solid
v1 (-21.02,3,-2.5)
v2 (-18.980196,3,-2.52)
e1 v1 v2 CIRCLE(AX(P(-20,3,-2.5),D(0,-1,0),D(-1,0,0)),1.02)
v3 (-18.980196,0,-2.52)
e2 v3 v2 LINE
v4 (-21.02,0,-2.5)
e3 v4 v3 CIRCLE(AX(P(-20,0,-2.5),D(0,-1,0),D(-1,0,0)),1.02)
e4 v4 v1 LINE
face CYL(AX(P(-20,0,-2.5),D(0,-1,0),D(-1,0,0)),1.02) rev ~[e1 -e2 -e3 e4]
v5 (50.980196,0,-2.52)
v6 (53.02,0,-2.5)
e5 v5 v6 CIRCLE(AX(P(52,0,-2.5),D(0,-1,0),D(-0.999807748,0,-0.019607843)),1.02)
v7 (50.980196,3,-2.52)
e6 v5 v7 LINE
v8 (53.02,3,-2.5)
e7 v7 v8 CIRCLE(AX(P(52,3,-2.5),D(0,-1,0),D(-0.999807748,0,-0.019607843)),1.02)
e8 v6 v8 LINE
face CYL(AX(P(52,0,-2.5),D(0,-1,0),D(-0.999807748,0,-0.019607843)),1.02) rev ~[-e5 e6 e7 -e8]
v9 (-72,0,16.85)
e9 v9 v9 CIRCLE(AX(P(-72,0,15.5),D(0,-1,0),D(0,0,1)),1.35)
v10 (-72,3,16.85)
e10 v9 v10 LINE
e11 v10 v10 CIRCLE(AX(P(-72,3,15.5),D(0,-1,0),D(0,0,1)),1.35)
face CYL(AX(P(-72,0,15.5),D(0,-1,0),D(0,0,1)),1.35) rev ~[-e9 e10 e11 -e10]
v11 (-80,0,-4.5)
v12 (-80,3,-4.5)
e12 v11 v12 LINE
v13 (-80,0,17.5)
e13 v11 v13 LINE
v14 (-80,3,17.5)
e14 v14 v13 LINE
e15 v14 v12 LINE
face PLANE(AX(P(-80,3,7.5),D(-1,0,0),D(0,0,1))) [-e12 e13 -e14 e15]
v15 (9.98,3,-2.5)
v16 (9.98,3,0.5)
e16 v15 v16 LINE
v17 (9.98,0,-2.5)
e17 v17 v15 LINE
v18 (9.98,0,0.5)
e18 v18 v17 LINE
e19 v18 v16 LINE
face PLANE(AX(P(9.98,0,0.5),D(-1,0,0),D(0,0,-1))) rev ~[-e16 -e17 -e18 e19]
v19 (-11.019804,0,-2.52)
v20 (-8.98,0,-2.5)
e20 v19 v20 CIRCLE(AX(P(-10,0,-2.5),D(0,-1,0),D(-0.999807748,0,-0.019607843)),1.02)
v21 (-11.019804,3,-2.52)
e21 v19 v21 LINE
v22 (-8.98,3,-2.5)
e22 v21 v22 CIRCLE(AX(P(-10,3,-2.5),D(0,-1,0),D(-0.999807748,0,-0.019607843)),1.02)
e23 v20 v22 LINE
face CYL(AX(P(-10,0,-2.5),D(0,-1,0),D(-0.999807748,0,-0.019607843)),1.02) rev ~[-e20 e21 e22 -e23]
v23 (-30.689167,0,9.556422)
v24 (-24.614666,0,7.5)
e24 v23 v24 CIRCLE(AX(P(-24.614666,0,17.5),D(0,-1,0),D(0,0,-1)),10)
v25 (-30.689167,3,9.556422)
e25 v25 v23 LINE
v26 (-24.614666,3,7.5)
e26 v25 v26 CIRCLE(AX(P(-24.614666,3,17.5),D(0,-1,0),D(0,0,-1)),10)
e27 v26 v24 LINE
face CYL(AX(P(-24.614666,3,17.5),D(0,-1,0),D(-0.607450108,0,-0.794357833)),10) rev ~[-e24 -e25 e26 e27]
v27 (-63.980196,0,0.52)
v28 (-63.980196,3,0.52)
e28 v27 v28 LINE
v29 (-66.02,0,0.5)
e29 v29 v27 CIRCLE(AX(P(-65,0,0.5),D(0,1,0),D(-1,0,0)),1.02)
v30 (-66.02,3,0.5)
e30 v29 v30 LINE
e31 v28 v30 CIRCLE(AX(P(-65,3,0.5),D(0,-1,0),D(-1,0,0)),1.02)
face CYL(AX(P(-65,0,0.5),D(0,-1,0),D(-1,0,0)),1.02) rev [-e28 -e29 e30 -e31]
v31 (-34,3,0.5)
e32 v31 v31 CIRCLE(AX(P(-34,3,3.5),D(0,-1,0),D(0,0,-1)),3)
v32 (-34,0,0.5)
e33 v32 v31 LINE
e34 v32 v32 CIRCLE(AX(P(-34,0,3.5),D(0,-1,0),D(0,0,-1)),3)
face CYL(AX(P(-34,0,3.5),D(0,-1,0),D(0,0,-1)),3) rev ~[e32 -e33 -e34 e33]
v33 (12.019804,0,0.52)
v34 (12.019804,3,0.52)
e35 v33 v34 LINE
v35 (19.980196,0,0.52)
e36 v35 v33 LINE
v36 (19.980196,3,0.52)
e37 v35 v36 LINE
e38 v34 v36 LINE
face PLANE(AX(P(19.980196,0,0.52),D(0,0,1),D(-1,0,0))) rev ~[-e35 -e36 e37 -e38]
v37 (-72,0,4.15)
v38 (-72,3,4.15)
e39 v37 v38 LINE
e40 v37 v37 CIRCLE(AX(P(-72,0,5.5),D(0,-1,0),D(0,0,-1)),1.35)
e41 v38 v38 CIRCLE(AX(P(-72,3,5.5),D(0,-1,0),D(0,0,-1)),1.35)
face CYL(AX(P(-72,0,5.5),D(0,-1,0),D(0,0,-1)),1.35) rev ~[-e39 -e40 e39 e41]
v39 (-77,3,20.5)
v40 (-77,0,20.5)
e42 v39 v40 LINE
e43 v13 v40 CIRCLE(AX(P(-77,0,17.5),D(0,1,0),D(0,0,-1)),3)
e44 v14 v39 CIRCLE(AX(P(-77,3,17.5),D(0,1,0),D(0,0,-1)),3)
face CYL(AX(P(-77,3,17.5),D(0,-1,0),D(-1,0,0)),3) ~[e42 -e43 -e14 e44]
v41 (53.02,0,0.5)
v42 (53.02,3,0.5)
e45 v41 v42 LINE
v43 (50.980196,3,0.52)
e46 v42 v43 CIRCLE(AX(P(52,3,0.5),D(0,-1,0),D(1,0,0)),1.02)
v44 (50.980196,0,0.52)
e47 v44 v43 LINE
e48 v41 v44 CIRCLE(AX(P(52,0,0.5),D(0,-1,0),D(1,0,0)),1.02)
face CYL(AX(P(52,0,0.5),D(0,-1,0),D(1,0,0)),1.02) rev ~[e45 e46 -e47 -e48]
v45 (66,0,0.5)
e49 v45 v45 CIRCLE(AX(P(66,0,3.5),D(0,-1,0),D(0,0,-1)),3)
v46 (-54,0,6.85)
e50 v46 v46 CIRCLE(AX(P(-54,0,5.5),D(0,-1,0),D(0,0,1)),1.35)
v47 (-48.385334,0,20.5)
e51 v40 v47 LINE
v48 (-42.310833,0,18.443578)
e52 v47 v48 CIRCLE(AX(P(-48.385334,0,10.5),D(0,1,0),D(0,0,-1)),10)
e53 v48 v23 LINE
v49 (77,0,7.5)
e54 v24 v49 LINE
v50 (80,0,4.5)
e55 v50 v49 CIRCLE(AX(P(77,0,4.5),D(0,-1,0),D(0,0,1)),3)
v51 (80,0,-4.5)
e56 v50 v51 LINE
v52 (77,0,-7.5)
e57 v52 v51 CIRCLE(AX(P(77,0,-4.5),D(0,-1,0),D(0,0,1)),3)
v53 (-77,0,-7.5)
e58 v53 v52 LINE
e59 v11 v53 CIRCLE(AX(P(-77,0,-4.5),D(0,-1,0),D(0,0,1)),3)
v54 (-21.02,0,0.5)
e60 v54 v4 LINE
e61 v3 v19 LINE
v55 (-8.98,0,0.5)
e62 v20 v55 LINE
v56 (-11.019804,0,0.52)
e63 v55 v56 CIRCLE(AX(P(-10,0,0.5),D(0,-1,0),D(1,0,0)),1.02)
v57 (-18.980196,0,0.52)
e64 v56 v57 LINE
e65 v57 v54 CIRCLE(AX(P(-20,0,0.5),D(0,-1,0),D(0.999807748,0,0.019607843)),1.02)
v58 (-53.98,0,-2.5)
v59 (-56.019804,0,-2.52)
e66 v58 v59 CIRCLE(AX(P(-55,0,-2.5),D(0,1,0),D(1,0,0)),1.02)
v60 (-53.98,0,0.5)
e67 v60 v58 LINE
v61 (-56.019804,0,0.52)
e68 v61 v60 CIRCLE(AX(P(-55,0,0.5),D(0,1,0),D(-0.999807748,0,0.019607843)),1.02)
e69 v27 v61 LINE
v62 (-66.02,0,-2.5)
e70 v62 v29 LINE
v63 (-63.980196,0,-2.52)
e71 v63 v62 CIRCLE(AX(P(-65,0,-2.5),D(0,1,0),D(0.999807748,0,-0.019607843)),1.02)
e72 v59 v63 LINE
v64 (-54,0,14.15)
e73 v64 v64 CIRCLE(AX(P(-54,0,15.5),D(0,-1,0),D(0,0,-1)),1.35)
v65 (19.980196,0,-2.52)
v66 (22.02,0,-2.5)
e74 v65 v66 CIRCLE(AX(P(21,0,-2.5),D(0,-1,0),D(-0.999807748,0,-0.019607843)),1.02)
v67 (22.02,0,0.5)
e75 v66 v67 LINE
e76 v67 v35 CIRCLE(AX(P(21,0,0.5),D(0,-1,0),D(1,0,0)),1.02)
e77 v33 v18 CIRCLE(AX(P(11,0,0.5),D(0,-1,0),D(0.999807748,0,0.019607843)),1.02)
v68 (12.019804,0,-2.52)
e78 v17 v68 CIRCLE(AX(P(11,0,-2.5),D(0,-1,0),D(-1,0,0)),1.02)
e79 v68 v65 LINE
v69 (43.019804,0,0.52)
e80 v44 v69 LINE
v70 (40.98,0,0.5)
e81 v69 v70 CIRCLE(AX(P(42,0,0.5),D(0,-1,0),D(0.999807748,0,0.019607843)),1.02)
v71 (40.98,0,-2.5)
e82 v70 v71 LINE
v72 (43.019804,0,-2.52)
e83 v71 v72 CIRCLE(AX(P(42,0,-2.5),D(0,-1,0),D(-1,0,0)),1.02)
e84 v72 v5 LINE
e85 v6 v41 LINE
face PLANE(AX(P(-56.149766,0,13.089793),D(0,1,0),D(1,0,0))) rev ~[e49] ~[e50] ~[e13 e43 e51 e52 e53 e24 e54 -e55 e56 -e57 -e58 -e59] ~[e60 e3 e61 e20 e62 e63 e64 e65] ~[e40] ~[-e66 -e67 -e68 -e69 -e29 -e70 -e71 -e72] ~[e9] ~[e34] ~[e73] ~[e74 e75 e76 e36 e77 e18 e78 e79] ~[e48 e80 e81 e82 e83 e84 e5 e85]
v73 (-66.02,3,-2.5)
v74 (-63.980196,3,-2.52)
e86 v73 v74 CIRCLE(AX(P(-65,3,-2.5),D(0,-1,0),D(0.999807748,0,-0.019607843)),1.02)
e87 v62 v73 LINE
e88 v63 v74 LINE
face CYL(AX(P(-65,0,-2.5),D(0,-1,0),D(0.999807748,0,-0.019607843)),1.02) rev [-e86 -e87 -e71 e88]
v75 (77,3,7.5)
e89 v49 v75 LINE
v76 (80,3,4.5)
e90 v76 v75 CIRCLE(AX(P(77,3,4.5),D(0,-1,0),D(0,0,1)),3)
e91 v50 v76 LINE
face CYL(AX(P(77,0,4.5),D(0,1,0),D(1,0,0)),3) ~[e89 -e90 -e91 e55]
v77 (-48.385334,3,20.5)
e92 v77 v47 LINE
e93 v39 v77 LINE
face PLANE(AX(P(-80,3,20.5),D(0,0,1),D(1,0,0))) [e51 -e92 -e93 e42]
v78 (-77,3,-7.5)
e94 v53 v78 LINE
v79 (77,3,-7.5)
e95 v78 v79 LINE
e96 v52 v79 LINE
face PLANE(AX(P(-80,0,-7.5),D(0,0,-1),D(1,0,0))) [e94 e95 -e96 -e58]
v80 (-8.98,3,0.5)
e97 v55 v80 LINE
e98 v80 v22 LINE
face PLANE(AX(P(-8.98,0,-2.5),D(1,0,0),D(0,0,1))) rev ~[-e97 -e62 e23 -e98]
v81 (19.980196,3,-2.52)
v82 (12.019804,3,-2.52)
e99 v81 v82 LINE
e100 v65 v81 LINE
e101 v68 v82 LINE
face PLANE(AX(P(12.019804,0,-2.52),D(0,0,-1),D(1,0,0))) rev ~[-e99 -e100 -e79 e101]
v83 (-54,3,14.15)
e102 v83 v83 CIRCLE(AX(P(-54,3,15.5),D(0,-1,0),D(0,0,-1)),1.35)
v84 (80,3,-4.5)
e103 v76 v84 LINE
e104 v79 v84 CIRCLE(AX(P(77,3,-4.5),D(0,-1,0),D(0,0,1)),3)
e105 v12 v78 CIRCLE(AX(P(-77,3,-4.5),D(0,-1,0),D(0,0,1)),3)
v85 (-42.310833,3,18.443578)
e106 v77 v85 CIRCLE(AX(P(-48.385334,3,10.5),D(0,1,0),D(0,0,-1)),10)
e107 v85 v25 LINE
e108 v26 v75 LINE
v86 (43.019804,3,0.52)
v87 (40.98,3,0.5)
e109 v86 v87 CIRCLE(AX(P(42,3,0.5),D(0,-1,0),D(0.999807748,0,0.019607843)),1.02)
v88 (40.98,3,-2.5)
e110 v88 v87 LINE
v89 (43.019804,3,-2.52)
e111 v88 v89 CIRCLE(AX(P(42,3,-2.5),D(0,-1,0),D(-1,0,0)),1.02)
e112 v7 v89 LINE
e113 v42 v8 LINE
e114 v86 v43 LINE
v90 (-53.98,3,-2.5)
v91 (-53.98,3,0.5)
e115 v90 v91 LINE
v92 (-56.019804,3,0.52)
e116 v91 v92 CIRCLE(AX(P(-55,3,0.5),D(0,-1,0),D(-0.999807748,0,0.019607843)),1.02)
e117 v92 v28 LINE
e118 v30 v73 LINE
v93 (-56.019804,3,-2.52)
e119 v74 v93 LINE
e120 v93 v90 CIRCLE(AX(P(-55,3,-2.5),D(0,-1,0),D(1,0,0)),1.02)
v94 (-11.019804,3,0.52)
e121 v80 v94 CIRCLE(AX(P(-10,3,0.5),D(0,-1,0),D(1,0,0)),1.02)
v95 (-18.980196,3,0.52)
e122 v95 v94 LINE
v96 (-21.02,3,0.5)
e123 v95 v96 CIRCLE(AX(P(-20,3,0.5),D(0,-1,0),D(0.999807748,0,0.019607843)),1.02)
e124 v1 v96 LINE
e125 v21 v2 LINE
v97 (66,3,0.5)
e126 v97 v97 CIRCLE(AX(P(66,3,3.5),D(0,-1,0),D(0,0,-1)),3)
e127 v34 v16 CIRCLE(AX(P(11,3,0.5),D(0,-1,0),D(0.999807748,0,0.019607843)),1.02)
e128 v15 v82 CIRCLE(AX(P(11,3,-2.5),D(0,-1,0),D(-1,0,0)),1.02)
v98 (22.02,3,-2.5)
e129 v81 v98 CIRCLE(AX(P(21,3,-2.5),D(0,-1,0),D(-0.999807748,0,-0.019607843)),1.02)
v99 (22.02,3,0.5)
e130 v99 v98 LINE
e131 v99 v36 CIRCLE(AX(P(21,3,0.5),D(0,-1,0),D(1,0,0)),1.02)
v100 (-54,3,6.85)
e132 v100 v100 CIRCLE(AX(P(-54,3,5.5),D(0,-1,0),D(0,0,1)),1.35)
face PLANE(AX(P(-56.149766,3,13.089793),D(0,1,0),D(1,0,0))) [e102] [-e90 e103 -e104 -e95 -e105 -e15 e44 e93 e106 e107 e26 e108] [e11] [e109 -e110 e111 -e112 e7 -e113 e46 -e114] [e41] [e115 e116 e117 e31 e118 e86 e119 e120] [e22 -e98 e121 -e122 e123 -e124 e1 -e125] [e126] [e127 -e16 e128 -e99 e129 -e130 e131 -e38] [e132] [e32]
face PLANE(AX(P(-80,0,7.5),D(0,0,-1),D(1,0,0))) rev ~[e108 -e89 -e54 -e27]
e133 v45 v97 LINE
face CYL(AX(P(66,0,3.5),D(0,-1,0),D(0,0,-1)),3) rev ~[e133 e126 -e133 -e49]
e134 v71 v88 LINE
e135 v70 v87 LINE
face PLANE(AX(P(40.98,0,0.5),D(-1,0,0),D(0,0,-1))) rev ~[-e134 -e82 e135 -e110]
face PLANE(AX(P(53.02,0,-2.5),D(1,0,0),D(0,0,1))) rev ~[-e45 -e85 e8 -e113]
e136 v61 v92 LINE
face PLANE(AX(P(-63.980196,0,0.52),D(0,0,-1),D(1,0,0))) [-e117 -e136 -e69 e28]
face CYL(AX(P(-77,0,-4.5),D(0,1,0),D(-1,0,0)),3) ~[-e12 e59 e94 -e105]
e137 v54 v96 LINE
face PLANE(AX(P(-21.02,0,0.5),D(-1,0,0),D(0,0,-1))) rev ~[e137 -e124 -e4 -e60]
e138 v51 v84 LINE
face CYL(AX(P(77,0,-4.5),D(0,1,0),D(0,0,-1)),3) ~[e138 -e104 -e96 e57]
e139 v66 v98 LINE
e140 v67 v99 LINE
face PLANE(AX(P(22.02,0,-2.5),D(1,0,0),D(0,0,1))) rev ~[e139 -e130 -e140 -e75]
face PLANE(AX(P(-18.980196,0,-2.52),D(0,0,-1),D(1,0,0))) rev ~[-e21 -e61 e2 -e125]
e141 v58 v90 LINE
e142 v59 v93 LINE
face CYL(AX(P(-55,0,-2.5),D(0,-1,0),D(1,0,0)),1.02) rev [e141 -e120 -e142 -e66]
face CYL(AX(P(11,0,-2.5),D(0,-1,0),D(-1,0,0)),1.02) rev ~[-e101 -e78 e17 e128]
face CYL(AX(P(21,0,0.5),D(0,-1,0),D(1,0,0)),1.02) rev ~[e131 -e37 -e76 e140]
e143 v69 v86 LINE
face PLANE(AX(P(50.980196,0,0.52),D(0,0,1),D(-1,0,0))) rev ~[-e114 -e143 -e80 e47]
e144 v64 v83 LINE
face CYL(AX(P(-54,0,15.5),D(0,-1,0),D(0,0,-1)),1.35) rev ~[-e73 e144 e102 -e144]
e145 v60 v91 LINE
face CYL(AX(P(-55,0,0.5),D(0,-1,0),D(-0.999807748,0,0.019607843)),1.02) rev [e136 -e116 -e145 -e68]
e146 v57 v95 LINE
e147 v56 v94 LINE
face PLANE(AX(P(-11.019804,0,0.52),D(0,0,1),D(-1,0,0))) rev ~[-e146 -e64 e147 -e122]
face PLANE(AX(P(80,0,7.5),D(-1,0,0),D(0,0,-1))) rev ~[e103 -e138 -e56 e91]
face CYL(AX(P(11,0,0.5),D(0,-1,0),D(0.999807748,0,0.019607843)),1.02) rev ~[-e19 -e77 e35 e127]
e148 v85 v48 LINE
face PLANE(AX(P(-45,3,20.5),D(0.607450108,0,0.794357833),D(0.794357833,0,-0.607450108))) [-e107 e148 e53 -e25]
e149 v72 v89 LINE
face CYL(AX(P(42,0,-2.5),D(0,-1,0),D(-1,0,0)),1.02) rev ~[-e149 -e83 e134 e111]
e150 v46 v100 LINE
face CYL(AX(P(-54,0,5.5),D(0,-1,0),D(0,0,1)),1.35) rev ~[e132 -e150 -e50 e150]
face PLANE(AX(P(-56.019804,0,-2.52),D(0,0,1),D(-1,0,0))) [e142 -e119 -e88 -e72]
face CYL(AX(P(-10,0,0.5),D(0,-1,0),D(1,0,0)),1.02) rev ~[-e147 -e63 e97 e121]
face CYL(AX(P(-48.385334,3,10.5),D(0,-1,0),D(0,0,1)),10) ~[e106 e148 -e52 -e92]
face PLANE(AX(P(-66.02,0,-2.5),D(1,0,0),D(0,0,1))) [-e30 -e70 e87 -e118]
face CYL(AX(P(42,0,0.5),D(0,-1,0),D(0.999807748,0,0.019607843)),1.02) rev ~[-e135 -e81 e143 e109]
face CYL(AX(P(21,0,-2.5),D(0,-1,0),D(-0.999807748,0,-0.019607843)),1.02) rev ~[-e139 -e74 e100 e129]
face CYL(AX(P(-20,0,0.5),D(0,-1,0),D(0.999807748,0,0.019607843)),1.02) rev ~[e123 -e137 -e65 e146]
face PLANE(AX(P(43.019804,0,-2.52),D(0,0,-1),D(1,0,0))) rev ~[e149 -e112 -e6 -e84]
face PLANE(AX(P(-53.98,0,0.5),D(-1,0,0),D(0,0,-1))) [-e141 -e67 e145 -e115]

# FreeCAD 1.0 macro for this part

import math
import FreeCAD as App
import Part
import Sketcher


def edges_at(feature, points):
    """Names of the edges that pass closest to the given points."""
    edges = feature.Shape.Edges
    near = lambda p: min(range(len(edges)), key=lambda i: edges[i].distToShape(Part.Vertex(*p))[0])
    return sorted({f"Edge{near(p) + 1}" for p in points})


def add_polygon(sketch, points):
    """Adds a closed chain of lines whose ends are joined by coincident constraints."""
    first, n = sketch.GeometryCount, len(points)
    for a, b in zip(points, points[1:] + points[:1]):
        sketch.addGeometry(Part.LineSegment(App.Vector(*a, 0), App.Vector(*b, 0)), False)
    for i in range(n):
        sketch.addConstraint(Sketcher.Constraint("Coincident", first + i, 2, first + (i + 1) % n, 1))

doc = App.newDocument("Part")
params = doc.addObject("Spreadsheet::Sheet", "Params")
for row, (alias, value) in enumerate([
    ("sketch1_width", "160 mm"),
    ("sketch1_height", "15 mm"),
    ("pad1_length", "3 mm"),
    ("sketch2_width", "52 mm"),
    ("sketch2_width2", "35 mm"),
    ("sketch2_height", "13 mm"),
    ("pad2_length", "3 mm"),
    ("sketch3_width", "12 mm"),
    ("sketch3_height", "3 mm"),
    ("sketch4_diameter", "2 mm"),
    ("sketch5_height", "3 mm"),
    ("sketch5_radius", "1.02 mm"),
    ("fillet_radius", "3 mm"),
    ("fillet2_radius", "10 mm"),
    ("sketch6_diameter", "6 mm"),
    ("sketch7_diameter", "2.7 mm"),
], start=1):
    params.set(f"A{row}", alias)
    params.set(f"B{row}", "=" + value)
    params.setAlias(f"B{row}", alias)

body = doc.addObject("PartDesign::Body", "Body")

# Sketch on XZ plane
sketch1 = body.newObject("Sketcher::SketchObject", "Sketch")
sketch1.AttachmentSupport = (doc.getObject("XZ_Plane"), [""])
sketch1.MapMode = "FlatFace"
add_polygon(sketch1, [(-80, -7.5), (-80, 7.5), (80, 7.5), (80, -7.5)])  # lines 0-3
sketch1.addConstraint([
    Sketcher.Constraint("Vertical", 0),
    Sketcher.Constraint("Horizontal", 1),
    Sketcher.Constraint("Vertical", 2),
    Sketcher.Constraint("Horizontal", 3),
    Sketcher.Constraint("Symmetric", 0, 2, 2, 2, -1, 1),
    Sketcher.Constraint("DistanceX", 1, 1, 1, 2, 160.0),
    Sketcher.Constraint("DistanceY", 0, 1, 0, 2, 15.0),
])
sketch1.setExpression("Constraints[9]", "Params.sketch1_width")
sketch1.setExpression("Constraints[10]", "Params.sketch1_height")
pad1 = body.newObject("PartDesign::Pad", "Pad")
pad1.Profile = sketch1
pad1.setExpression("Length", "Params.pad1_length")
pad1.Reversed = True

# Sketch on XZ plane
sketch2 = body.newObject("Sketcher::SketchObject", "Sketch001")
sketch2.AttachmentSupport = (doc.getObject("XZ_Plane"), [""])
sketch2.MapMode = "FlatFace"
sketch2.AttachmentOffset = App.Placement(App.Vector(0, 0, -3), App.Rotation())
add_polygon(sketch2, [(-28, 7.5), (-80, 7.5), (-80, 20.5), (-45, 20.5)])  # lines 0-3
sketch2.addConstraint([
    Sketcher.Constraint("Horizontal", 0),
    Sketcher.Constraint("Vertical", 1),
    Sketcher.Constraint("Horizontal", 2),
    Sketcher.Constraint("DistanceX", 0, 2, 0, 1, 52.0),
    Sketcher.Constraint("DistanceX", 2, 1, 2, 2, 35.0),
    Sketcher.Constraint("DistanceY", 1, 1, 1, 2, 13.0),
    Sketcher.Constraint("DistanceX", 0, 2, -1, 1, 80.0),
    Sketcher.Constraint("DistanceY", -1, 1, 0, 2, 7.5),
])
sketch2.setExpression("Constraints[7]", "Params.sketch2_width")
sketch2.setExpression("Constraints[8]", "Params.sketch2_width2")
sketch2.setExpression("Constraints[9]", "Params.sketch2_height")
pad2 = body.newObject("PartDesign::Pad", "Pad001")
pad2.Profile = sketch2
pad2.setExpression("Length", "Params.pad2_length")

# Sketch on XZ plane
sketch3 = body.newObject("Sketcher::SketchObject", "Sketch002")
sketch3.AttachmentSupport = (doc.getObject("XZ_Plane"), [""])
sketch3.MapMode = "FlatFace"
add_polygon(sketch3, [(10, 0.5), (10, -2.5), (22, -2.5), (22, 0.5)])  # lines 0-3
add_polygon(sketch3, [(41, 0.5), (41, -2.5), (53, -2.5), (53, 0.5)])  # lines 4-7
add_polygon(sketch3, [(-21, 0.5), (-21, -2.5), (-9, -2.5), (-9, 0.5)])  # lines 8-11
add_polygon(sketch3, [(-66, 0.5), (-66, -2.5), (-54, -2.5), (-54, 0.5)])  # lines 12-15
sketch3.addConstraint([
    Sketcher.Constraint("Vertical", 0),
    Sketcher.Constraint("Horizontal", 1),
    Sketcher.Constraint("Vertical", 2),
    Sketcher.Constraint("Horizontal", 3),
    Sketcher.Constraint("Vertical", 4),
    Sketcher.Constraint("Horizontal", 5),
    Sketcher.Constraint("Vertical", 6),
    Sketcher.Constraint("Horizontal", 7),
    Sketcher.Constraint("Vertical", 8),
    Sketcher.Constraint("Horizontal", 9),
    Sketcher.Constraint("Vertical", 10),
    Sketcher.Constraint("Horizontal", 11),
    Sketcher.Constraint("Vertical", 12),
    Sketcher.Constraint("Horizontal", 13),
    Sketcher.Constraint("Vertical", 14),
    Sketcher.Constraint("Horizontal", 15),
    Sketcher.Constraint("Horizontal", 1, 2, 4, 2),
    Sketcher.Constraint("Horizontal", 3, 2, 6, 2),
    Sketcher.Constraint("Horizontal", 5, 2, 8, 2),
    Sketcher.Constraint("Horizontal", 7, 2, 10, 2),
    Sketcher.Constraint("Horizontal", 9, 2, 12, 2),
    Sketcher.Constraint("Horizontal", 11, 2, 14, 2),
    Sketcher.Constraint("Equal", 3, 5),
    Sketcher.Constraint("Equal", 7, 9),
    Sketcher.Constraint("Equal", 11, 13),
    Sketcher.Constraint("DistanceX", 1, 1, 1, 2, 12.0),
    Sketcher.Constraint("DistanceY", 0, 2, 0, 1, 3.0),
    Sketcher.Constraint("DistanceX", -1, 1, 0, 2, 10.0),
    Sketcher.Constraint("DistanceX", -1, 1, 4, 2, 41.0),
    Sketcher.Constraint("DistanceX", 8, 2, -1, 1, 21.0),
    Sketcher.Constraint("DistanceX", 12, 2, -1, 1, 66.0),
    Sketcher.Constraint("DistanceY", 0, 2, -1, 1, 2.5),
])
sketch3.setExpression("Constraints[41]", "Params.sketch3_width")
sketch3.setExpression("Constraints[42]", "Params.sketch3_height")
pocket1 = body.newObject("PartDesign::Pocket", "Pocket")
pocket1.Profile = sketch3
pocket1.Type = "ThroughAll"

# Sketch on XZ plane
sketch4 = body.newObject("Sketcher::SketchObject", "Sketch003")
sketch4.AttachmentSupport = (doc.getObject("XZ_Plane"), [""])
sketch4.MapMode = "FlatFace"
sketch4.addGeometry([
    Part.Circle(App.Vector(52, -2.5, 0), App.Vector(0, 0, 1), 1),  # 0
    Part.Circle(App.Vector(42, -2.5, 0), App.Vector(0, 0, 1), 1),  # 1
    Part.Circle(App.Vector(21, -2.5, 0), App.Vector(0, 0, 1), 1),  # 2
    Part.Circle(App.Vector(11, -2.5, 0), App.Vector(0, 0, 1), 1),  # 3
    Part.Circle(App.Vector(-10, -2.5, 0), App.Vector(0, 0, 1), 1),  # 4
    Part.Circle(App.Vector(-20, -2.5, 0), App.Vector(0, 0, 1), 1),  # 5
    Part.Circle(App.Vector(-65, -2.5, 0), App.Vector(0, 0, 1), 1),  # 6
    Part.Circle(App.Vector(-55, -2.5, 0), App.Vector(0, 0, 1), 1),  # 7
    Part.Circle(App.Vector(-55, 0.5, 0), App.Vector(0, 0, 1), 1),  # 8
    Part.Circle(App.Vector(-65, 0.5, 0), App.Vector(0, 0, 1), 1),  # 9
    Part.Circle(App.Vector(-20, 0.5, 0), App.Vector(0, 0, 1), 1),  # 10
    Part.Circle(App.Vector(-10, 0.5, 0), App.Vector(0, 0, 1), 1),  # 11
    Part.Circle(App.Vector(11, 0.5, 0), App.Vector(0, 0, 1), 1),  # 12
    Part.Circle(App.Vector(21, 0.5, 0), App.Vector(0, 0, 1), 1),  # 13
    Part.Circle(App.Vector(42, 0.5, 0), App.Vector(0, 0, 1), 1),  # 14
    Part.Circle(App.Vector(52, 0.5, 0), App.Vector(0, 0, 1), 1),  # 15
], False)
sketch4.addConstraint([
    Sketcher.Constraint("Equal", 0, 1),
    Sketcher.Constraint("Equal", 1, 2),
    Sketcher.Constraint("Equal", 2, 3),
    Sketcher.Constraint("Equal", 3, 4),
    Sketcher.Constraint("Equal", 4, 5),
    Sketcher.Constraint("Equal", 5, 6),
    Sketcher.Constraint("Equal", 6, 7),
    Sketcher.Constraint("Equal", 7, 8),
    Sketcher.Constraint("Equal", 8, 9),
    Sketcher.Constraint("Equal", 9, 10),
    Sketcher.Constraint("Equal", 10, 11),
    Sketcher.Constraint("Equal", 11, 12),
    Sketcher.Constraint("Equal", 12, 13),
    Sketcher.Constraint("Equal", 13, 14),
    Sketcher.Constraint("Equal", 14, 15),
    Sketcher.Constraint("Horizontal", 0, 3, 1, 3),
    Sketcher.Constraint("Horizontal", 1, 3, 2, 3),
    Sketcher.Constraint("Horizontal", 2, 3, 3, 3),
    Sketcher.Constraint("Horizontal", 3, 3, 4, 3),
    Sketcher.Constraint("Horizontal", 4, 3, 5, 3),
    Sketcher.Constraint("Horizontal", 5, 3, 6, 3),
    Sketcher.Constraint("Horizontal", 6, 3, 7, 3),
    Sketcher.Constraint("Horizontal", 8, 3, 9, 3),
    Sketcher.Constraint("Horizontal", 9, 3, 10, 3),
    Sketcher.Constraint("Horizontal", 10, 3, 11, 3),
    Sketcher.Constraint("Horizontal", 11, 3, 12, 3),
    Sketcher.Constraint("Horizontal", 12, 3, 13, 3),
    Sketcher.Constraint("Horizontal", 13, 3, 14, 3),
    Sketcher.Constraint("Horizontal", 14, 3, 15, 3),
    Sketcher.Constraint("Vertical", 7, 3, 8, 3),
    Sketcher.Constraint("Vertical", 6, 3, 9, 3),
    Sketcher.Constraint("Vertical", 5, 3, 10, 3),
    Sketcher.Constraint("Vertical", 4, 3, 11, 3),
    Sketcher.Constraint("Vertical", 3, 3, 12, 3),
    Sketcher.Constraint("Vertical", 2, 3, 13, 3),
    Sketcher.Constraint("Vertical", 1, 3, 14, 3),
    Sketcher.Constraint("Vertical", 0, 3, 15, 3),
    Sketcher.Constraint("Diameter", 0, 2.0),
    Sketcher.Constraint("DistanceX", -1, 1, 0, 3, 52.0),
    Sketcher.Constraint("DistanceX", -1, 1, 1, 3, 42.0),
    Sketcher.Constraint("DistanceX", -1, 1, 2, 3, 21.0),
    Sketcher.Constraint("DistanceX", -1, 1, 3, 3, 11.0),
    Sketcher.Constraint("DistanceX", 4, 3, -1, 1, 10.0),
    Sketcher.Constraint("DistanceX", 5, 3, -1, 1, 20.0),
    Sketcher.Constraint("DistanceX", 6, 3, -1, 1, 65.0),
    Sketcher.Constraint("DistanceX", 7, 3, -1, 1, 55.0),
    Sketcher.Constraint("DistanceY", 7, 3, 8, 3, 3.0),
    Sketcher.Constraint("DistanceY", 0, 3, -1, 1, 2.5),
])
sketch4.setExpression("Constraints[37]", "Params.sketch4_diameter")
pocket2 = body.newObject("PartDesign::Pocket", "Pocket001")
pocket2.Profile = sketch4
pocket2.Type = "ThroughAll"

# Sketch on XZ plane
sketch5 = body.newObject("Sketcher::SketchObject", "Sketch004")
sketch5.AttachmentSupport = (doc.getObject("XZ_Plane"), [""])
sketch5.MapMode = "FlatFace"
sketch5.addGeometry([
    Part.LineSegment(App.Vector(19.980196, 0.52, 0), App.Vector(12.019804, 0.52, 0)),  # 0
    Part.ArcOfCircle(Part.Circle(App.Vector(11, 0.5, 0), App.Vector(0, 0, 1), 1.02), math.radians(1.123519), math.radians(180)),  # 1
    Part.LineSegment(App.Vector(9.98, 0.5, 0), App.Vector(9.98, -2.5, 0)),  # 2
    Part.ArcOfCircle(Part.Circle(App.Vector(11, -2.5, 0), App.Vector(0, 0, 1), 1.02), math.radians(180), math.radians(358.876481)),  # 3
    Part.LineSegment(App.Vector(12.019804, -2.52, 0), App.Vector(19.980196, -2.52, 0)),  # 4
    Part.ArcOfCircle(Part.Circle(App.Vector(21, -2.5, 0), App.Vector(0, 0, 1), 1.02), math.radians(-178.876481), math.radians(0)),  # 5
    Part.LineSegment(App.Vector(22.02, -2.5, 0), App.Vector(22.02, 0.5, 0)),  # 6
    Part.ArcOfCircle(Part.Circle(App.Vector(21, 0.5, 0), App.Vector(0, 0, 1), 1.02), math.radians(0), math.radians(178.876481)),  # 7
    Part.LineSegment(App.Vector(53.02, -2.5, 0), App.Vector(53.02, 0.5, 0)),  # 8
    Part.ArcOfCircle(Part.Circle(App.Vector(52, 0.5, 0), App.Vector(0, 0, 1), 1.02), math.radians(0), math.radians(178.876481)),  # 9
    Part.LineSegment(App.Vector(50.980196, 0.52, 0), App.Vector(43.019804, 0.52, 0)),  # 10
    Part.ArcOfCircle(Part.Circle(App.Vector(42, 0.5, 0), App.Vector(0, 0, 1), 1.02), math.radians(1.123519), math.radians(180)),  # 11
    Part.LineSegment(App.Vector(40.98, 0.5, 0), App.Vector(40.98, -2.5, 0)),  # 12
    Part.ArcOfCircle(Part.Circle(App.Vector(42, -2.5, 0), App.Vector(0, 0, 1), 1.02), math.radians(180), math.radians(358.876481)),  # 13
    Part.LineSegment(App.Vector(43.019804, -2.52, 0), App.Vector(50.980196, -2.52, 0)),  # 14
    Part.ArcOfCircle(Part.Circle(App.Vector(52, -2.5, 0), App.Vector(0, 0, 1), 1.02), math.radians(-178.876481), math.radians(0)),  # 15
    Part.LineSegment(App.Vector(-11.019804, 0.52, 0), App.Vector(-18.980196, 0.52, 0)),  # 16
    Part.ArcOfCircle(Part.Circle(App.Vector(-20, 0.5, 0), App.Vector(0, 0, 1), 1.02), math.radians(1.123519), math.radians(180)),  # 17
    Part.LineSegment(App.Vector(-21.02, 0.5, 0), App.Vector(-21.02, -2.5, 0)),  # 18
    Part.ArcOfCircle(Part.Circle(App.Vector(-20, -2.5, 0), App.Vector(0, 0, 1), 1.02), math.radians(180), math.radians(358.876481)),  # 19
    Part.LineSegment(App.Vector(-18.980196, -2.52, 0), App.Vector(-11.019804, -2.52, 0)),  # 20
    Part.ArcOfCircle(Part.Circle(App.Vector(-10, -2.5, 0), App.Vector(0, 0, 1), 1.02), math.radians(-178.876481), math.radians(0)),  # 21
    Part.LineSegment(App.Vector(-8.98, -2.5, 0), App.Vector(-8.98, 0.5, 0)),  # 22
    Part.ArcOfCircle(Part.Circle(App.Vector(-10, 0.5, 0), App.Vector(0, 0, 1), 1.02), math.radians(0), math.radians(178.876481)),  # 23
    Part.LineSegment(App.Vector(-66.02, 0.5, 0), App.Vector(-66.02, -2.5, 0)),  # 24
    Part.ArcOfCircle(Part.Circle(App.Vector(-65, -2.5, 0), App.Vector(0, 0, 1), 1.02), math.radians(180), math.radians(358.876481)),  # 25
    Part.LineSegment(App.Vector(-63.980196, -2.52, 0), App.Vector(-56.019804, -2.52, 0)),  # 26
    Part.ArcOfCircle(Part.Circle(App.Vector(-55, -2.5, 0), App.Vector(0, 0, 1), 1.02), math.radians(-178.876481), math.radians(0)),  # 27
    Part.LineSegment(App.Vector(-53.98, -2.5, 0), App.Vector(-53.98, 0.5, 0)),  # 28
    Part.ArcOfCircle(Part.Circle(App.Vector(-55, 0.5, 0), App.Vector(0, 0, 1), 1.02), math.radians(0), math.radians(178.876481)),  # 29
    Part.LineSegment(App.Vector(-56.019804, 0.52, 0), App.Vector(-63.980196, 0.52, 0)),  # 30
    Part.ArcOfCircle(Part.Circle(App.Vector(-65, 0.5, 0), App.Vector(0, 0, 1), 1.02), math.radians(1.123519), math.radians(180)),  # 31
], False)
sketch5.addConstraint([
    Sketcher.Constraint("Coincident", 0, 2, 1, 1),
    Sketcher.Constraint("Tangent", 1, 2, 2, 1),
    Sketcher.Constraint("Tangent", 2, 2, 3, 1),
    Sketcher.Constraint("Coincident", 3, 2, 4, 1),
    Sketcher.Constraint("Coincident", 4, 2, 5, 1),
    Sketcher.Constraint("Tangent", 5, 2, 6, 1),
    Sketcher.Constraint("Tangent", 6, 2, 7, 1),
    Sketcher.Constraint("Coincident", 7, 2, 0, 1),
    Sketcher.Constraint("Tangent", 8, 2, 9, 1),
    Sketcher.Constraint("Coincident", 9, 2, 10, 1),
    Sketcher.Constraint("Coincident", 10, 2, 11, 1),
    Sketcher.Constraint("Tangent", 11, 2, 12, 1),
    Sketcher.Constraint("Tangent", 12, 2, 13, 1),
    Sketcher.Constraint("Coincident", 13, 2, 14, 1),
    Sketcher.Constraint("Coincident", 14, 2, 15, 1),
    Sketcher.Constraint("Tangent", 15, 2, 8, 1),
    Sketcher.Constraint("Coincident", 16, 2, 17, 1),
    Sketcher.Constraint("Tangent", 17, 2, 18, 1),
    Sketcher.Constraint("Tangent", 18, 2, 19, 1),
    Sketcher.Constraint("Coincident", 19, 2, 20, 1),
    Sketcher.Constraint("Coincident", 20, 2, 21, 1),
    Sketcher.Constraint("Tangent", 21, 2, 22, 1),
    Sketcher.Constraint("Tangent", 22, 2, 23, 1),
    Sketcher.Constraint("Coincident", 23, 2, 16, 1),
    Sketcher.Constraint("Tangent", 24, 2, 25, 1),
    Sketcher.Constraint("Coincident", 25, 2, 26, 1),
    Sketcher.Constraint("Coincident", 26, 2, 27, 1),
    Sketcher.Constraint("Tangent", 27, 2, 28, 1),
    Sketcher.Constraint("Tangent", 28, 2, 29, 1),
    Sketcher.Constraint("Coincident", 29, 2, 30, 1),
    Sketcher.Constraint("Coincident", 30, 2, 31, 1),
    Sketcher.Constraint("Tangent", 31, 2, 24, 1),
    Sketcher.Constraint("Horizontal", 0),
    Sketcher.Constraint("Vertical", 2),
    Sketcher.Constraint("Horizontal", 4),
    Sketcher.Constraint("Vertical", 6),
    Sketcher.Constraint("Vertical", 8),
    Sketcher.Constraint("Horizontal", 10),
    Sketcher.Constraint("Vertical", 12),
    Sketcher.Constraint("Horizontal", 14),
    Sketcher.Constraint("Horizontal", 16),
    Sketcher.Constraint("Vertical", 18),
    Sketcher.Constraint("Horizontal", 20),
    Sketcher.Constraint("Vertical", 22),
    Sketcher.Constraint("Vertical", 24),
    Sketcher.Constraint("Horizontal", 26),
    Sketcher.Constraint("Vertical", 28),
    Sketcher.Constraint("Horizontal", 30),
    Sketcher.Constraint("Equal", 1, 3),
    Sketcher.Constraint("Equal", 3, 5),
    Sketcher.Constraint("Equal", 5, 7),
    Sketcher.Constraint("Equal", 7, 9),
    Sketcher.Constraint("Equal", 9, 11),
    Sketcher.Constraint("Equal", 11, 13),
    Sketcher.Constraint("Equal", 13, 15),
    Sketcher.Constraint("Equal", 15, 17),
    Sketcher.Constraint("Equal", 17, 19),
    Sketcher.Constraint("Equal", 19, 21),
    Sketcher.Constraint("Equal", 21, 23),
    Sketcher.Constraint("Equal", 23, 25),
    Sketcher.Constraint("Equal", 25, 27),
    Sketcher.Constraint("Equal", 27, 29),
    Sketcher.Constraint("Equal", 29, 31),
    Sketcher.Constraint("Horizontal", 3, 3, 5, 3),
    Sketcher.Constraint("Horizontal", 1, 3, 7, 3),
    Sketcher.Constraint("Horizontal", 7, 3, 9, 3),
    Sketcher.Constraint("Horizontal", 9, 3, 11, 3),
    Sketcher.Constraint("Horizontal", 5, 3, 13, 3),
    Sketcher.Constraint("Horizontal", 13, 3, 15, 3),
    Sketcher.Constraint("Horizontal", 11, 3, 17, 3),
    Sketcher.Constraint("Horizontal", 15, 3, 19, 3),
    Sketcher.Constraint("Horizontal", 19, 3, 21, 3),
    Sketcher.Constraint("Horizontal", 17, 3, 23, 3),
    Sketcher.Constraint("Horizontal", 21, 3, 25, 3),
    Sketcher.Constraint("Horizontal", 25, 3, 27, 3),
    Sketcher.Constraint("Horizontal", 23, 3, 29, 3),
    Sketcher.Constraint("Horizontal", 29, 3, 31, 3),
    Sketcher.Constraint("Horizontal", 7, 2, 9, 2),
    Sketcher.Constraint("Horizontal", 4, 2, 13, 2),
    Sketcher.Constraint("Horizontal", 10, 2, 16, 2),
    Sketcher.Constraint("Horizontal", 14, 2, 19, 2),
    Sketcher.Constraint("Horizontal", 20, 2, 25, 2),
    Sketcher.Constraint("Horizontal", 23, 2, 29, 2),
    Sketcher.Constraint("Vertical", 0, 2, 3, 2),
    Sketcher.Constraint("Equal", 4, 10),
    Sketcher.Constraint("Equal", 14, 16),
    Sketcher.Constraint("Equal", 20, 26),
    Sketcher.Constraint("DistanceY", 2, 2, 2, 1, 3.0),
    Sketcher.Constraint("Radius", 1, 1.02),
    Sketcher.Constraint("DistanceX", -1, 1, 1, 3, 11.0),
    Sketcher.Constraint("DistanceX", -1, 1, 5, 3, 21.0),
    Sketcher.Constraint("DistanceX", -1, 1, 9, 3, 52.0),
    Sketcher.Constraint("DistanceX", 17, 3, -1, 1, 20.0),
    Sketcher.Constraint("DistanceX", 25, 3, -1, 1, 65.0),
    Sketcher.Constraint("DistanceY", -1, 1, 1, 3, 0.5),
    Sketcher.Constraint("DistanceY", -1, 1, 0, 2, 0.52),
])
sketch5.setExpression("Constraints[87]", "Params.sketch5_height")
sketch5.setExpression("Constraints[88]", "Params.sketch5_radius")
pocket3 = body.newObject("PartDesign::Pocket", "Pocket002")
pocket3.Profile = sketch5
pocket3.Type = "ThroughAll"
doc.recompute()

fillet = body.newObject("PartDesign::Fillet", "Fillet")
fillet.Base = (pocket3, edges_at(pocket3, [
    (-80, 1.5, 20.5),
    (80, 1.5, 7.5),
    (-80, 1.5, -7.5),
    (80, 1.5, -7.5),
]))
fillet.setExpression("Radius", "Params.fillet_radius")
doc.recompute()

fillet2 = body.newObject("PartDesign::Fillet", "Fillet001")
fillet2.Base = (fillet, edges_at(fillet, [(-28, 1.5, 7.5), (-45, 1.5, 20.5)]))
fillet2.setExpression("Radius", "Params.fillet2_radius")

# Sketch on XZ plane
sketch6 = body.newObject("Sketcher::SketchObject", "Sketch005")
sketch6.AttachmentSupport = (doc.getObject("XZ_Plane"), [""])
sketch6.MapMode = "FlatFace"
sketch6.addGeometry([
    Part.Circle(App.Vector(66, 3.5, 0), App.Vector(0, 0, 1), 3),
    Part.Circle(App.Vector(-34, 3.5, 0), App.Vector(0, 0, 1), 3),
], False)
sketch6.addConstraint([
    Sketcher.Constraint("Equal", 0, 1),
    Sketcher.Constraint("Horizontal", 0, 3, 1, 3),
    Sketcher.Constraint("Diameter", 0, 6.0),
    Sketcher.Constraint("DistanceX", -1, 1, 0, 3, 66.0),
    Sketcher.Constraint("DistanceX", 1, 3, -1, 1, 34.0),
    Sketcher.Constraint("DistanceY", -1, 1, 0, 3, 3.5),
])
sketch6.setExpression("Constraints[2]", "Params.sketch6_diameter")
pocket4 = body.newObject("PartDesign::Pocket", "Pocket003")
pocket4.Profile = sketch6
pocket4.Type = "ThroughAll"

# Sketch on XZ plane
sketch7 = body.newObject("Sketcher::SketchObject", "Sketch006")
sketch7.AttachmentSupport = (doc.getObject("XZ_Plane"), [""])
sketch7.MapMode = "FlatFace"
sketch7.addGeometry([
    Part.Circle(App.Vector(-72, 5.5, 0), App.Vector(0, 0, 1), 1.35),
    Part.Circle(App.Vector(-72, 15.5, 0), App.Vector(0, 0, 1), 1.35),
    Part.Circle(App.Vector(-54, 15.5, 0), App.Vector(0, 0, 1), 1.35),
    Part.Circle(App.Vector(-54, 5.5, 0), App.Vector(0, 0, 1), 1.35),
], False)
sketch7.addConstraint([
    Sketcher.Constraint("Equal", 0, 1),
    Sketcher.Constraint("Equal", 1, 2),
    Sketcher.Constraint("Equal", 2, 3),
    Sketcher.Constraint("Horizontal", 1, 3, 2, 3),
    Sketcher.Constraint("Horizontal", 0, 3, 3, 3),
    Sketcher.Constraint("Vertical", 0, 3, 1, 3),
    Sketcher.Constraint("Vertical", 2, 3, 3, 3),
    Sketcher.Constraint("Diameter", 0, 2.7),
    Sketcher.Constraint("DistanceX", 0, 3, -1, 1, 72.0),
    Sketcher.Constraint("DistanceX", 2, 3, -1, 1, 54.0),
    Sketcher.Constraint("DistanceY", 0, 3, 1, 3, 10.0),
    Sketcher.Constraint("DistanceY", -1, 1, 0, 3, 5.5),
])
sketch7.setExpression("Constraints[7]", "Params.sketch7_diameter")
pocket5 = body.newObject("PartDesign::Pocket", "Pocket004")
pocket5.Profile = sketch7
pocket5.Type = "ThroughAll"

doc.recompute()
